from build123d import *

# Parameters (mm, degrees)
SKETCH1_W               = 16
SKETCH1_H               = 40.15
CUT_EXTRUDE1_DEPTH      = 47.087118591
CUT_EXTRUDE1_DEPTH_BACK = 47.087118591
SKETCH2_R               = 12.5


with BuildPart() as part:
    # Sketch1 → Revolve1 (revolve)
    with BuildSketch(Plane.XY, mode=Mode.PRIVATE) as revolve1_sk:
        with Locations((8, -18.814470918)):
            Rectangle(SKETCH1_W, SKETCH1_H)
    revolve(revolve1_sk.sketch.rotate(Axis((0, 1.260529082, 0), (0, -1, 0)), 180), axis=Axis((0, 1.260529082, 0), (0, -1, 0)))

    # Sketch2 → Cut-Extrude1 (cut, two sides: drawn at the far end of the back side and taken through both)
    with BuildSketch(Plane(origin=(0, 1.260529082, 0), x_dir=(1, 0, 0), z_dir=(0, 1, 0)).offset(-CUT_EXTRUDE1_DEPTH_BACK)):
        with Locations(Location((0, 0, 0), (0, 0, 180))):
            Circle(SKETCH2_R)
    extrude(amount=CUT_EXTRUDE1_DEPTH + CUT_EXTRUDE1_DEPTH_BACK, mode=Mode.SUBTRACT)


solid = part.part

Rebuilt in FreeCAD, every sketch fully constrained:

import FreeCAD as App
import Part
import Sketcher

V = App.Vector

doc = App.newDocument("Part")
params = doc.addObject("Spreadsheet::Sheet", "Params")
for row, (alias, value) in enumerate([
    ("sketch1_width", "16 mm"),
    ("sketch1_height", "40.15 mm"),
    ("revolution_angle", "360 deg"),
    ("sketch2_diameter", "25 mm"),
], start=1):
    params.set(f"A{row}", alias)
    params.set(f"B{row}", "=" + value)
    params.setAlias(f"B{row}", alias)

body = doc.addObject("PartDesign::Body", "Body")

sketch1 = doc.addObject("Sketcher::SketchObject", "Sketch")
body.addObject(sketch1)
sketch1.AttachmentSupport = (doc.XY_Plane, [""])
sketch1.MapMode = "FlatFace"
sketch1.addGeometry([
    Part.LineSegment(V(0, 1, 0), V(0, -39, 0)),
    Part.LineSegment(V(0, -39, 0), V(16, -39, 0)),
    Part.LineSegment(V(16, -39, 0), V(16, 1, 0)),
    Part.LineSegment(V(16, 1, 0), V(0, 1, 0)),
], False)
sketch1.addConstraint([
    Sketcher.Constraint("Coincident", 0, 2, 1, 1),
    Sketcher.Constraint("Coincident", 1, 2, 2, 1),
    Sketcher.Constraint("Coincident", 2, 2, 3, 1),
    Sketcher.Constraint("Coincident", 3, 2, 0, 1),
    Sketcher.Constraint("Vertical", 0),
    Sketcher.Constraint("Horizontal", 1),
    Sketcher.Constraint("Vertical", 2),
    Sketcher.Constraint("Horizontal", 3),
    Sketcher.Constraint("PointOnObject", 0, 2, -2),
    Sketcher.Constraint("DistanceX", 1, 1, 1, 2, 16.0),
    Sketcher.Constraint("DistanceY", 0, 2, 0, 1, 40.15),
    Sketcher.Constraint("DistanceY", 0, 2, -1, 1, 38.889471),
])
sketch1.setExpression("Constraints[9]", "Params.sketch1_width")
sketch1.setExpression("Constraints[10]", "Params.sketch1_height")
revolution = doc.addObject("PartDesign::Revolution", "Revolution")
body.addObject(revolution)
revolution.Profile = sketch1
revolution.ReferenceAxis = (sketch1, ["V_Axis"])
revolution.setExpression("Angle", "Params.revolution_angle")

sketch2 = doc.addObject("Sketcher::SketchObject", "Sketch001")
body.addObject(sketch2)
sketch2.AttachmentSupport = (doc.XZ_Plane, [""])
sketch2.MapMode = "FlatFace"
sketch2.AttachmentOffset = App.Placement(V(0, 0, -1.260529), App.Rotation())
sketch2.addGeometry(Part.Circle(V(0, 0, 0), V(0, 0, 1), 12), False)
sketch2.addConstraint([
    Sketcher.Constraint("Coincident", 0, 3, -1, 1),
    Sketcher.Constraint("Diameter", 0, 25.0),
])
sketch2.setExpression("Constraints[1]", "Params.sketch2_diameter")
pocket1 = doc.addObject("PartDesign::Pocket", "Pocket")
body.addObject(pocket1)
pocket1.Profile = sketch2
pocket1.Type = "ThroughAll"
pocket1.Midplane = True

doc.recompute()
